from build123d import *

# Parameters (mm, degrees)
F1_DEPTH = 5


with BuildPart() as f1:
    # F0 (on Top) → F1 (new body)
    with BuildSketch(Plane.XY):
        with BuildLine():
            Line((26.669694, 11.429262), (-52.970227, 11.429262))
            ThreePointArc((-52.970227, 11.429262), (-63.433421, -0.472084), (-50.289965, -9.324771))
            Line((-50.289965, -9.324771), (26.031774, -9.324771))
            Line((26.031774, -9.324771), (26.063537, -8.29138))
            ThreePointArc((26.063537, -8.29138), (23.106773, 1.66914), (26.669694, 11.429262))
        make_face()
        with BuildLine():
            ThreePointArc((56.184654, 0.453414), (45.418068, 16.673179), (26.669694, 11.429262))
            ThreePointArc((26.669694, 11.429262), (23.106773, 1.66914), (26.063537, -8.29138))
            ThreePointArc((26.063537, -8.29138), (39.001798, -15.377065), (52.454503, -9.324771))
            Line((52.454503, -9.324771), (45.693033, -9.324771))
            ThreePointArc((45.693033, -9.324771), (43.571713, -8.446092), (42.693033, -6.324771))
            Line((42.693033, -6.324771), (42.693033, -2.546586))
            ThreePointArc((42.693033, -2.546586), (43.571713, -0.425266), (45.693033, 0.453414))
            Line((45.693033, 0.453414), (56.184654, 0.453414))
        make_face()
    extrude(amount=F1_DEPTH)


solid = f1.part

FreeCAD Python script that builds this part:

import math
import FreeCAD as App
import Part
import Sketcher

V = App.Vector
Q = App.Units.Quantity

doc = App.newDocument("Part")
params = doc.addObject("Spreadsheet::Sheet", "Params")
for row, (alias, value) in enumerate([
    ("sketch1_radius", "2.999999 mm"),
    ("pad1_length", "5 mm"),
], start=1):
    params.set(f"A{row}", alias)
    params.set(f"B{row}", "=" + value)
    params.setAlias(f"B{row}", alias)

body = doc.addObject("PartDesign::Body", "Body")

# Sketch on XY plane
sketch1 = doc.addObject("Sketcher::SketchObject", "Sketch")
body.addObject(sketch1)
sketch1.AttachmentSupport = (doc.XY_Plane, [""])
sketch1.MapMode = "FlatFace"
sketch1.addGeometry(Part.LineSegment(V(26.669694, 11.429262, 0), V(-52.970227, 11.429262, 0)), False)
sketch1.addGeometry(Part.ArcOfCircle(Part.Circle(V(-52.970227, 0.879175, 0), V(0, 0, 1), 10.550087), math.radians(89.999999), math.radians(284.717372)), False)
sketch1.addGeometry(Part.LineSegment(V(-50.289965, -9.324771, 0), V(26.031774, -9.324771, 0)), False)
sketch1.addGeometry(Part.LineSegment(V(26.031774, -9.324771, 0), V(26.063537, -8.29138, 0)), False)
sketch1.addGeometry(Part.ArcOfCircle(Part.Circle(V(39.649366, 1.160668, 0), V(0, 0, 1), 16.550407), math.radians(-145.172564), math.radians(-39.312206)), False)
sketch1.addGeometry(Part.LineSegment(V(52.454503, -9.324771, 0), V(45.693033, -9.324771, 0)), False)
sketch1.addGeometry(Part.ArcOfCircle(Part.Circle(V(45.693032, -6.324772, 0), V(0, 0, 1), 2.999999), math.radians(179.99999), math.radians(270.00001)), False)
sketch1.addGeometry(Part.LineSegment(V(42.693033, -6.324771, 0), V(42.693033, -2.546586, 0)), False)
sketch1.addGeometry(Part.ArcOfCircle(Part.Circle(V(45.693034, -2.546587, 0), V(0, 0, 1), 3.000001), math.radians(90.000022), math.radians(179.999978)), False)
sketch1.addGeometry(Part.LineSegment(V(45.693033, 0.453414, 0), V(56.184654, 0.453414, 0)), False)
sketch1.addGeometry(Part.ArcOfCircle(Part.Circle(V(39.649367, 1.160667, 0), V(0, 0, 1), 16.550406), math.radians(-2.449183), math.radians(141.651458)), False)
sketch1.addConstraint(Sketcher.Constraint("Tangent", 0, 2, 1, 1))
sketch1.addConstraint(Sketcher.Constraint("Coincident", 1, 2, 2, 1))
sketch1.addConstraint(Sketcher.Constraint("Coincident", 2, 2, 3, 1))
sketch1.addConstraint(Sketcher.Constraint("Coincident", 3, 2, 4, 1))
sketch1.addConstraint(Sketcher.Constraint("Coincident", 4, 2, 5, 1))
sketch1.addConstraint(Sketcher.Constraint("Tangent", 5, 2, 6, 2))
sketch1.addConstraint(Sketcher.Constraint("Tangent", 6, 1, 7, 1))
sketch1.addConstraint(Sketcher.Constraint("Tangent", 7, 2, 8, 2))
sketch1.addConstraint(Sketcher.Constraint("Tangent", 8, 1, 9, 1))
sketch1.addConstraint(Sketcher.Constraint("Coincident", 9, 2, 10, 1))
sketch1.addConstraint(Sketcher.Constraint("Coincident", 10, 2, 0, 1))
sketch1.addConstraint(Sketcher.Constraint("Horizontal", 0))
sketch1.addConstraint(Sketcher.Constraint("Horizontal", 2))
sketch1.addConstraint(Sketcher.Constraint("Horizontal", 5))
sketch1.addConstraint(Sketcher.Constraint("Vertical", 7))
sketch1.addConstraint(Sketcher.Constraint("Horizontal", 9))
sketch1.addConstraint(Sketcher.Constraint("Coincident", 10, 3, 4, 3))
sketch1.addConstraint(Sketcher.Constraint("Equal", 6, 8))
sketch1.addConstraint(Sketcher.Constraint("Equal", 4, 10))
sketch1.addConstraint(Sketcher.Constraint("Horizontal", 2, 2, 4, 2))
sketch1.addConstraint(Sketcher.Constraint("Radius", 6, Q("2.999999 mm")))
sketch1.addConstraint(Sketcher.Constraint("Radius", 1, Q("10.550087 mm")))
sketch1.addConstraint(Sketcher.Constraint("Radius", 4, Q("16.550407 mm")))
sketch1.addConstraint(Sketcher.Constraint("DistanceX", 0, 2, 0, 1, Q("79.639921 mm")))
sketch1.addConstraint(Sketcher.Constraint("DistanceX", 2, 1, 2, 2, Q("76.321739 mm")))
sketch1.addConstraint(Sketcher.Constraint("DistanceX", 5, 2, 5, 1, Q("6.76147 mm")))
sketch1.addConstraint(Sketcher.Constraint("DistanceX", 9, 1, 9, 2, Q("10.491621 mm")))
sketch1.addConstraint(Sketcher.Constraint("Distance", 3, Q("1.033879 mm")))
sketch1.addConstraint(Sketcher.Constraint("DistanceY", 7, 1, 7, 2, Q("3.778185 mm")))
sketch1.addConstraint(Sketcher.Constraint("DistanceY", -1, 1, 4, 3, Q("1.160668 mm")))
sketch1.addConstraint(Sketcher.Constraint("DistanceY", 3, 2, -1, 1, Q("8.29138 mm")))
sketch1.addConstraint(Sketcher.Constraint("DistanceX", 1, 3, -1, 1, Q("52.970227 mm")))
sketch1.setExpression("Constraints[20]", "Params.sketch1_radius")
pad1 = doc.addObject("PartDesign::Pad", "Pad")
body.addObject(pad1)
pad1.Profile = sketch1
pad1.setExpression("Length", "Params.pad1_length")

doc.recompute()
